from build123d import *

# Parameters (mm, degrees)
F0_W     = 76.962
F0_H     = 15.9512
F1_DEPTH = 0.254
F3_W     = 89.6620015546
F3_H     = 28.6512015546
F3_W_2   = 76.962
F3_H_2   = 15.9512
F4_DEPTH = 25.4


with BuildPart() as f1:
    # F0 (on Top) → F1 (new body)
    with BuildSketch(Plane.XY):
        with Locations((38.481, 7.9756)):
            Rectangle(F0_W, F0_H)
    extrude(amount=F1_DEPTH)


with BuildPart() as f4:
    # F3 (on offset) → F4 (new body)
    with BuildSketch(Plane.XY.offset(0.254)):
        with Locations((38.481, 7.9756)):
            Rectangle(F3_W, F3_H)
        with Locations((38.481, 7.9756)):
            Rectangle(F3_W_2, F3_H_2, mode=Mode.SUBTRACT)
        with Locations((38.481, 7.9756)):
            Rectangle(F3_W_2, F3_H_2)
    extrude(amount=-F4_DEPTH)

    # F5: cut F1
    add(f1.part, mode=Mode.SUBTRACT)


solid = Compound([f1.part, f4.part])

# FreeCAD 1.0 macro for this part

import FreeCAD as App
import Part
import Sketcher

V = App.Vector
Q = App.Units.Quantity

doc = App.newDocument("Part")
body = doc.addObject("PartDesign::Body", "Body")

sketch1 = doc.addObject("Sketcher::SketchObject", "Sketch")
body.addObject(sketch1)
sketch1.AttachmentSupport = (doc.XY_Plane, [""])
sketch1.MapMode = "FlatFace"
sketch1.addGeometry([
    Part.LineSegment(V(0, 16, 0), V(0, 0, 0)),
    Part.LineSegment(V(0, 0, 0), V(77, 0, 0)),
    Part.LineSegment(V(77, 0, 0), V(77, 16, 0)),
    Part.LineSegment(V(77, 16, 0), V(0, 16, 0)),
], False)
sketch1.addConstraint([
    Sketcher.Constraint("Coincident", 0, 2, 1, 1),
    Sketcher.Constraint("Coincident", 1, 2, 2, 1),
    Sketcher.Constraint("Coincident", 2, 2, 3, 1),
    Sketcher.Constraint("Coincident", 3, 2, 0, 1),
    Sketcher.Constraint("Vertical", 0),
    Sketcher.Constraint("Horizontal", 1),
    Sketcher.Constraint("Vertical", 2),
    Sketcher.Constraint("Horizontal", 3),
    Sketcher.Constraint("Coincident", 0, 2, -1, 1),
    Sketcher.Constraint("DistanceX", 1, 1, 1, 2, Q("3.03 in")),
    Sketcher.Constraint("DistanceY", 0, 2, 0, 1, Q("0.628 in")),
])
pad1 = doc.addObject("PartDesign::Pad", "Pad")
body.addObject(pad1)
pad1.Profile = sketch1
pad1.Length = Q("0.01 in")
body2 = doc.addObject("PartDesign::Body", "Body001")

sketch2 = doc.addObject("Sketcher::SketchObject", "Sketch001")
body2.addObject(sketch2)
sketch2.AttachmentSupport = (doc.getObject("XY_Plane001"), [""])
sketch2.MapMode = "FlatFace"
sketch2.AttachmentOffset = App.Placement(V(0, 0, 0.01 * 25.4), App.Rotation())
sketch2.addGeometry([
    Part.LineSegment(V(-6, 22, 0), V(-6, -6, 0)),
    Part.LineSegment(V(-6, -6, 0), V(83, -6, 0)),
    Part.LineSegment(V(83, -6, 0), V(83, 22, 0)),
    Part.LineSegment(V(83, 22, 0), V(-6, 22, 0)),
], False)
sketch2.addConstraint([
    Sketcher.Constraint("Coincident", 0, 2, 1, 1),
    Sketcher.Constraint("Coincident", 1, 2, 2, 1),
    Sketcher.Constraint("Coincident", 2, 2, 3, 1),
    Sketcher.Constraint("Coincident", 3, 2, 0, 1),
    Sketcher.Constraint("Vertical", 0),
    Sketcher.Constraint("Horizontal", 1),
    Sketcher.Constraint("Vertical", 2),
    Sketcher.Constraint("Horizontal", 3),
    Sketcher.Constraint("DistanceX", 1, 1, 1, 2, Q("3.5300001 in")),
    Sketcher.Constraint("DistanceY", 0, 2, 0, 1, Q("1.1280001 in")),
    Sketcher.Constraint("DistanceX", 0, 2, -1, 1, Q("0.25 in")),
    Sketcher.Constraint("DistanceY", 0, 2, -1, 1, Q("0.25 in")),
])
pad2 = doc.addObject("PartDesign::Pad", "Pad001")
body2.addObject(pad2)
pad2.Profile = sketch2
pad2.Length = Q("1 in")
pad2.Reversed = True
doc.recompute()

body3 = doc.addObject("PartDesign::Body", "Body002")
body3.BaseFeature = body
boolean = doc.addObject("PartDesign::Boolean", "Boolean")
body2.addObject(boolean)
boolean.Type = "Cut"
boolean.addObjects([body3])
doc.recompute()

doc.recompute()
